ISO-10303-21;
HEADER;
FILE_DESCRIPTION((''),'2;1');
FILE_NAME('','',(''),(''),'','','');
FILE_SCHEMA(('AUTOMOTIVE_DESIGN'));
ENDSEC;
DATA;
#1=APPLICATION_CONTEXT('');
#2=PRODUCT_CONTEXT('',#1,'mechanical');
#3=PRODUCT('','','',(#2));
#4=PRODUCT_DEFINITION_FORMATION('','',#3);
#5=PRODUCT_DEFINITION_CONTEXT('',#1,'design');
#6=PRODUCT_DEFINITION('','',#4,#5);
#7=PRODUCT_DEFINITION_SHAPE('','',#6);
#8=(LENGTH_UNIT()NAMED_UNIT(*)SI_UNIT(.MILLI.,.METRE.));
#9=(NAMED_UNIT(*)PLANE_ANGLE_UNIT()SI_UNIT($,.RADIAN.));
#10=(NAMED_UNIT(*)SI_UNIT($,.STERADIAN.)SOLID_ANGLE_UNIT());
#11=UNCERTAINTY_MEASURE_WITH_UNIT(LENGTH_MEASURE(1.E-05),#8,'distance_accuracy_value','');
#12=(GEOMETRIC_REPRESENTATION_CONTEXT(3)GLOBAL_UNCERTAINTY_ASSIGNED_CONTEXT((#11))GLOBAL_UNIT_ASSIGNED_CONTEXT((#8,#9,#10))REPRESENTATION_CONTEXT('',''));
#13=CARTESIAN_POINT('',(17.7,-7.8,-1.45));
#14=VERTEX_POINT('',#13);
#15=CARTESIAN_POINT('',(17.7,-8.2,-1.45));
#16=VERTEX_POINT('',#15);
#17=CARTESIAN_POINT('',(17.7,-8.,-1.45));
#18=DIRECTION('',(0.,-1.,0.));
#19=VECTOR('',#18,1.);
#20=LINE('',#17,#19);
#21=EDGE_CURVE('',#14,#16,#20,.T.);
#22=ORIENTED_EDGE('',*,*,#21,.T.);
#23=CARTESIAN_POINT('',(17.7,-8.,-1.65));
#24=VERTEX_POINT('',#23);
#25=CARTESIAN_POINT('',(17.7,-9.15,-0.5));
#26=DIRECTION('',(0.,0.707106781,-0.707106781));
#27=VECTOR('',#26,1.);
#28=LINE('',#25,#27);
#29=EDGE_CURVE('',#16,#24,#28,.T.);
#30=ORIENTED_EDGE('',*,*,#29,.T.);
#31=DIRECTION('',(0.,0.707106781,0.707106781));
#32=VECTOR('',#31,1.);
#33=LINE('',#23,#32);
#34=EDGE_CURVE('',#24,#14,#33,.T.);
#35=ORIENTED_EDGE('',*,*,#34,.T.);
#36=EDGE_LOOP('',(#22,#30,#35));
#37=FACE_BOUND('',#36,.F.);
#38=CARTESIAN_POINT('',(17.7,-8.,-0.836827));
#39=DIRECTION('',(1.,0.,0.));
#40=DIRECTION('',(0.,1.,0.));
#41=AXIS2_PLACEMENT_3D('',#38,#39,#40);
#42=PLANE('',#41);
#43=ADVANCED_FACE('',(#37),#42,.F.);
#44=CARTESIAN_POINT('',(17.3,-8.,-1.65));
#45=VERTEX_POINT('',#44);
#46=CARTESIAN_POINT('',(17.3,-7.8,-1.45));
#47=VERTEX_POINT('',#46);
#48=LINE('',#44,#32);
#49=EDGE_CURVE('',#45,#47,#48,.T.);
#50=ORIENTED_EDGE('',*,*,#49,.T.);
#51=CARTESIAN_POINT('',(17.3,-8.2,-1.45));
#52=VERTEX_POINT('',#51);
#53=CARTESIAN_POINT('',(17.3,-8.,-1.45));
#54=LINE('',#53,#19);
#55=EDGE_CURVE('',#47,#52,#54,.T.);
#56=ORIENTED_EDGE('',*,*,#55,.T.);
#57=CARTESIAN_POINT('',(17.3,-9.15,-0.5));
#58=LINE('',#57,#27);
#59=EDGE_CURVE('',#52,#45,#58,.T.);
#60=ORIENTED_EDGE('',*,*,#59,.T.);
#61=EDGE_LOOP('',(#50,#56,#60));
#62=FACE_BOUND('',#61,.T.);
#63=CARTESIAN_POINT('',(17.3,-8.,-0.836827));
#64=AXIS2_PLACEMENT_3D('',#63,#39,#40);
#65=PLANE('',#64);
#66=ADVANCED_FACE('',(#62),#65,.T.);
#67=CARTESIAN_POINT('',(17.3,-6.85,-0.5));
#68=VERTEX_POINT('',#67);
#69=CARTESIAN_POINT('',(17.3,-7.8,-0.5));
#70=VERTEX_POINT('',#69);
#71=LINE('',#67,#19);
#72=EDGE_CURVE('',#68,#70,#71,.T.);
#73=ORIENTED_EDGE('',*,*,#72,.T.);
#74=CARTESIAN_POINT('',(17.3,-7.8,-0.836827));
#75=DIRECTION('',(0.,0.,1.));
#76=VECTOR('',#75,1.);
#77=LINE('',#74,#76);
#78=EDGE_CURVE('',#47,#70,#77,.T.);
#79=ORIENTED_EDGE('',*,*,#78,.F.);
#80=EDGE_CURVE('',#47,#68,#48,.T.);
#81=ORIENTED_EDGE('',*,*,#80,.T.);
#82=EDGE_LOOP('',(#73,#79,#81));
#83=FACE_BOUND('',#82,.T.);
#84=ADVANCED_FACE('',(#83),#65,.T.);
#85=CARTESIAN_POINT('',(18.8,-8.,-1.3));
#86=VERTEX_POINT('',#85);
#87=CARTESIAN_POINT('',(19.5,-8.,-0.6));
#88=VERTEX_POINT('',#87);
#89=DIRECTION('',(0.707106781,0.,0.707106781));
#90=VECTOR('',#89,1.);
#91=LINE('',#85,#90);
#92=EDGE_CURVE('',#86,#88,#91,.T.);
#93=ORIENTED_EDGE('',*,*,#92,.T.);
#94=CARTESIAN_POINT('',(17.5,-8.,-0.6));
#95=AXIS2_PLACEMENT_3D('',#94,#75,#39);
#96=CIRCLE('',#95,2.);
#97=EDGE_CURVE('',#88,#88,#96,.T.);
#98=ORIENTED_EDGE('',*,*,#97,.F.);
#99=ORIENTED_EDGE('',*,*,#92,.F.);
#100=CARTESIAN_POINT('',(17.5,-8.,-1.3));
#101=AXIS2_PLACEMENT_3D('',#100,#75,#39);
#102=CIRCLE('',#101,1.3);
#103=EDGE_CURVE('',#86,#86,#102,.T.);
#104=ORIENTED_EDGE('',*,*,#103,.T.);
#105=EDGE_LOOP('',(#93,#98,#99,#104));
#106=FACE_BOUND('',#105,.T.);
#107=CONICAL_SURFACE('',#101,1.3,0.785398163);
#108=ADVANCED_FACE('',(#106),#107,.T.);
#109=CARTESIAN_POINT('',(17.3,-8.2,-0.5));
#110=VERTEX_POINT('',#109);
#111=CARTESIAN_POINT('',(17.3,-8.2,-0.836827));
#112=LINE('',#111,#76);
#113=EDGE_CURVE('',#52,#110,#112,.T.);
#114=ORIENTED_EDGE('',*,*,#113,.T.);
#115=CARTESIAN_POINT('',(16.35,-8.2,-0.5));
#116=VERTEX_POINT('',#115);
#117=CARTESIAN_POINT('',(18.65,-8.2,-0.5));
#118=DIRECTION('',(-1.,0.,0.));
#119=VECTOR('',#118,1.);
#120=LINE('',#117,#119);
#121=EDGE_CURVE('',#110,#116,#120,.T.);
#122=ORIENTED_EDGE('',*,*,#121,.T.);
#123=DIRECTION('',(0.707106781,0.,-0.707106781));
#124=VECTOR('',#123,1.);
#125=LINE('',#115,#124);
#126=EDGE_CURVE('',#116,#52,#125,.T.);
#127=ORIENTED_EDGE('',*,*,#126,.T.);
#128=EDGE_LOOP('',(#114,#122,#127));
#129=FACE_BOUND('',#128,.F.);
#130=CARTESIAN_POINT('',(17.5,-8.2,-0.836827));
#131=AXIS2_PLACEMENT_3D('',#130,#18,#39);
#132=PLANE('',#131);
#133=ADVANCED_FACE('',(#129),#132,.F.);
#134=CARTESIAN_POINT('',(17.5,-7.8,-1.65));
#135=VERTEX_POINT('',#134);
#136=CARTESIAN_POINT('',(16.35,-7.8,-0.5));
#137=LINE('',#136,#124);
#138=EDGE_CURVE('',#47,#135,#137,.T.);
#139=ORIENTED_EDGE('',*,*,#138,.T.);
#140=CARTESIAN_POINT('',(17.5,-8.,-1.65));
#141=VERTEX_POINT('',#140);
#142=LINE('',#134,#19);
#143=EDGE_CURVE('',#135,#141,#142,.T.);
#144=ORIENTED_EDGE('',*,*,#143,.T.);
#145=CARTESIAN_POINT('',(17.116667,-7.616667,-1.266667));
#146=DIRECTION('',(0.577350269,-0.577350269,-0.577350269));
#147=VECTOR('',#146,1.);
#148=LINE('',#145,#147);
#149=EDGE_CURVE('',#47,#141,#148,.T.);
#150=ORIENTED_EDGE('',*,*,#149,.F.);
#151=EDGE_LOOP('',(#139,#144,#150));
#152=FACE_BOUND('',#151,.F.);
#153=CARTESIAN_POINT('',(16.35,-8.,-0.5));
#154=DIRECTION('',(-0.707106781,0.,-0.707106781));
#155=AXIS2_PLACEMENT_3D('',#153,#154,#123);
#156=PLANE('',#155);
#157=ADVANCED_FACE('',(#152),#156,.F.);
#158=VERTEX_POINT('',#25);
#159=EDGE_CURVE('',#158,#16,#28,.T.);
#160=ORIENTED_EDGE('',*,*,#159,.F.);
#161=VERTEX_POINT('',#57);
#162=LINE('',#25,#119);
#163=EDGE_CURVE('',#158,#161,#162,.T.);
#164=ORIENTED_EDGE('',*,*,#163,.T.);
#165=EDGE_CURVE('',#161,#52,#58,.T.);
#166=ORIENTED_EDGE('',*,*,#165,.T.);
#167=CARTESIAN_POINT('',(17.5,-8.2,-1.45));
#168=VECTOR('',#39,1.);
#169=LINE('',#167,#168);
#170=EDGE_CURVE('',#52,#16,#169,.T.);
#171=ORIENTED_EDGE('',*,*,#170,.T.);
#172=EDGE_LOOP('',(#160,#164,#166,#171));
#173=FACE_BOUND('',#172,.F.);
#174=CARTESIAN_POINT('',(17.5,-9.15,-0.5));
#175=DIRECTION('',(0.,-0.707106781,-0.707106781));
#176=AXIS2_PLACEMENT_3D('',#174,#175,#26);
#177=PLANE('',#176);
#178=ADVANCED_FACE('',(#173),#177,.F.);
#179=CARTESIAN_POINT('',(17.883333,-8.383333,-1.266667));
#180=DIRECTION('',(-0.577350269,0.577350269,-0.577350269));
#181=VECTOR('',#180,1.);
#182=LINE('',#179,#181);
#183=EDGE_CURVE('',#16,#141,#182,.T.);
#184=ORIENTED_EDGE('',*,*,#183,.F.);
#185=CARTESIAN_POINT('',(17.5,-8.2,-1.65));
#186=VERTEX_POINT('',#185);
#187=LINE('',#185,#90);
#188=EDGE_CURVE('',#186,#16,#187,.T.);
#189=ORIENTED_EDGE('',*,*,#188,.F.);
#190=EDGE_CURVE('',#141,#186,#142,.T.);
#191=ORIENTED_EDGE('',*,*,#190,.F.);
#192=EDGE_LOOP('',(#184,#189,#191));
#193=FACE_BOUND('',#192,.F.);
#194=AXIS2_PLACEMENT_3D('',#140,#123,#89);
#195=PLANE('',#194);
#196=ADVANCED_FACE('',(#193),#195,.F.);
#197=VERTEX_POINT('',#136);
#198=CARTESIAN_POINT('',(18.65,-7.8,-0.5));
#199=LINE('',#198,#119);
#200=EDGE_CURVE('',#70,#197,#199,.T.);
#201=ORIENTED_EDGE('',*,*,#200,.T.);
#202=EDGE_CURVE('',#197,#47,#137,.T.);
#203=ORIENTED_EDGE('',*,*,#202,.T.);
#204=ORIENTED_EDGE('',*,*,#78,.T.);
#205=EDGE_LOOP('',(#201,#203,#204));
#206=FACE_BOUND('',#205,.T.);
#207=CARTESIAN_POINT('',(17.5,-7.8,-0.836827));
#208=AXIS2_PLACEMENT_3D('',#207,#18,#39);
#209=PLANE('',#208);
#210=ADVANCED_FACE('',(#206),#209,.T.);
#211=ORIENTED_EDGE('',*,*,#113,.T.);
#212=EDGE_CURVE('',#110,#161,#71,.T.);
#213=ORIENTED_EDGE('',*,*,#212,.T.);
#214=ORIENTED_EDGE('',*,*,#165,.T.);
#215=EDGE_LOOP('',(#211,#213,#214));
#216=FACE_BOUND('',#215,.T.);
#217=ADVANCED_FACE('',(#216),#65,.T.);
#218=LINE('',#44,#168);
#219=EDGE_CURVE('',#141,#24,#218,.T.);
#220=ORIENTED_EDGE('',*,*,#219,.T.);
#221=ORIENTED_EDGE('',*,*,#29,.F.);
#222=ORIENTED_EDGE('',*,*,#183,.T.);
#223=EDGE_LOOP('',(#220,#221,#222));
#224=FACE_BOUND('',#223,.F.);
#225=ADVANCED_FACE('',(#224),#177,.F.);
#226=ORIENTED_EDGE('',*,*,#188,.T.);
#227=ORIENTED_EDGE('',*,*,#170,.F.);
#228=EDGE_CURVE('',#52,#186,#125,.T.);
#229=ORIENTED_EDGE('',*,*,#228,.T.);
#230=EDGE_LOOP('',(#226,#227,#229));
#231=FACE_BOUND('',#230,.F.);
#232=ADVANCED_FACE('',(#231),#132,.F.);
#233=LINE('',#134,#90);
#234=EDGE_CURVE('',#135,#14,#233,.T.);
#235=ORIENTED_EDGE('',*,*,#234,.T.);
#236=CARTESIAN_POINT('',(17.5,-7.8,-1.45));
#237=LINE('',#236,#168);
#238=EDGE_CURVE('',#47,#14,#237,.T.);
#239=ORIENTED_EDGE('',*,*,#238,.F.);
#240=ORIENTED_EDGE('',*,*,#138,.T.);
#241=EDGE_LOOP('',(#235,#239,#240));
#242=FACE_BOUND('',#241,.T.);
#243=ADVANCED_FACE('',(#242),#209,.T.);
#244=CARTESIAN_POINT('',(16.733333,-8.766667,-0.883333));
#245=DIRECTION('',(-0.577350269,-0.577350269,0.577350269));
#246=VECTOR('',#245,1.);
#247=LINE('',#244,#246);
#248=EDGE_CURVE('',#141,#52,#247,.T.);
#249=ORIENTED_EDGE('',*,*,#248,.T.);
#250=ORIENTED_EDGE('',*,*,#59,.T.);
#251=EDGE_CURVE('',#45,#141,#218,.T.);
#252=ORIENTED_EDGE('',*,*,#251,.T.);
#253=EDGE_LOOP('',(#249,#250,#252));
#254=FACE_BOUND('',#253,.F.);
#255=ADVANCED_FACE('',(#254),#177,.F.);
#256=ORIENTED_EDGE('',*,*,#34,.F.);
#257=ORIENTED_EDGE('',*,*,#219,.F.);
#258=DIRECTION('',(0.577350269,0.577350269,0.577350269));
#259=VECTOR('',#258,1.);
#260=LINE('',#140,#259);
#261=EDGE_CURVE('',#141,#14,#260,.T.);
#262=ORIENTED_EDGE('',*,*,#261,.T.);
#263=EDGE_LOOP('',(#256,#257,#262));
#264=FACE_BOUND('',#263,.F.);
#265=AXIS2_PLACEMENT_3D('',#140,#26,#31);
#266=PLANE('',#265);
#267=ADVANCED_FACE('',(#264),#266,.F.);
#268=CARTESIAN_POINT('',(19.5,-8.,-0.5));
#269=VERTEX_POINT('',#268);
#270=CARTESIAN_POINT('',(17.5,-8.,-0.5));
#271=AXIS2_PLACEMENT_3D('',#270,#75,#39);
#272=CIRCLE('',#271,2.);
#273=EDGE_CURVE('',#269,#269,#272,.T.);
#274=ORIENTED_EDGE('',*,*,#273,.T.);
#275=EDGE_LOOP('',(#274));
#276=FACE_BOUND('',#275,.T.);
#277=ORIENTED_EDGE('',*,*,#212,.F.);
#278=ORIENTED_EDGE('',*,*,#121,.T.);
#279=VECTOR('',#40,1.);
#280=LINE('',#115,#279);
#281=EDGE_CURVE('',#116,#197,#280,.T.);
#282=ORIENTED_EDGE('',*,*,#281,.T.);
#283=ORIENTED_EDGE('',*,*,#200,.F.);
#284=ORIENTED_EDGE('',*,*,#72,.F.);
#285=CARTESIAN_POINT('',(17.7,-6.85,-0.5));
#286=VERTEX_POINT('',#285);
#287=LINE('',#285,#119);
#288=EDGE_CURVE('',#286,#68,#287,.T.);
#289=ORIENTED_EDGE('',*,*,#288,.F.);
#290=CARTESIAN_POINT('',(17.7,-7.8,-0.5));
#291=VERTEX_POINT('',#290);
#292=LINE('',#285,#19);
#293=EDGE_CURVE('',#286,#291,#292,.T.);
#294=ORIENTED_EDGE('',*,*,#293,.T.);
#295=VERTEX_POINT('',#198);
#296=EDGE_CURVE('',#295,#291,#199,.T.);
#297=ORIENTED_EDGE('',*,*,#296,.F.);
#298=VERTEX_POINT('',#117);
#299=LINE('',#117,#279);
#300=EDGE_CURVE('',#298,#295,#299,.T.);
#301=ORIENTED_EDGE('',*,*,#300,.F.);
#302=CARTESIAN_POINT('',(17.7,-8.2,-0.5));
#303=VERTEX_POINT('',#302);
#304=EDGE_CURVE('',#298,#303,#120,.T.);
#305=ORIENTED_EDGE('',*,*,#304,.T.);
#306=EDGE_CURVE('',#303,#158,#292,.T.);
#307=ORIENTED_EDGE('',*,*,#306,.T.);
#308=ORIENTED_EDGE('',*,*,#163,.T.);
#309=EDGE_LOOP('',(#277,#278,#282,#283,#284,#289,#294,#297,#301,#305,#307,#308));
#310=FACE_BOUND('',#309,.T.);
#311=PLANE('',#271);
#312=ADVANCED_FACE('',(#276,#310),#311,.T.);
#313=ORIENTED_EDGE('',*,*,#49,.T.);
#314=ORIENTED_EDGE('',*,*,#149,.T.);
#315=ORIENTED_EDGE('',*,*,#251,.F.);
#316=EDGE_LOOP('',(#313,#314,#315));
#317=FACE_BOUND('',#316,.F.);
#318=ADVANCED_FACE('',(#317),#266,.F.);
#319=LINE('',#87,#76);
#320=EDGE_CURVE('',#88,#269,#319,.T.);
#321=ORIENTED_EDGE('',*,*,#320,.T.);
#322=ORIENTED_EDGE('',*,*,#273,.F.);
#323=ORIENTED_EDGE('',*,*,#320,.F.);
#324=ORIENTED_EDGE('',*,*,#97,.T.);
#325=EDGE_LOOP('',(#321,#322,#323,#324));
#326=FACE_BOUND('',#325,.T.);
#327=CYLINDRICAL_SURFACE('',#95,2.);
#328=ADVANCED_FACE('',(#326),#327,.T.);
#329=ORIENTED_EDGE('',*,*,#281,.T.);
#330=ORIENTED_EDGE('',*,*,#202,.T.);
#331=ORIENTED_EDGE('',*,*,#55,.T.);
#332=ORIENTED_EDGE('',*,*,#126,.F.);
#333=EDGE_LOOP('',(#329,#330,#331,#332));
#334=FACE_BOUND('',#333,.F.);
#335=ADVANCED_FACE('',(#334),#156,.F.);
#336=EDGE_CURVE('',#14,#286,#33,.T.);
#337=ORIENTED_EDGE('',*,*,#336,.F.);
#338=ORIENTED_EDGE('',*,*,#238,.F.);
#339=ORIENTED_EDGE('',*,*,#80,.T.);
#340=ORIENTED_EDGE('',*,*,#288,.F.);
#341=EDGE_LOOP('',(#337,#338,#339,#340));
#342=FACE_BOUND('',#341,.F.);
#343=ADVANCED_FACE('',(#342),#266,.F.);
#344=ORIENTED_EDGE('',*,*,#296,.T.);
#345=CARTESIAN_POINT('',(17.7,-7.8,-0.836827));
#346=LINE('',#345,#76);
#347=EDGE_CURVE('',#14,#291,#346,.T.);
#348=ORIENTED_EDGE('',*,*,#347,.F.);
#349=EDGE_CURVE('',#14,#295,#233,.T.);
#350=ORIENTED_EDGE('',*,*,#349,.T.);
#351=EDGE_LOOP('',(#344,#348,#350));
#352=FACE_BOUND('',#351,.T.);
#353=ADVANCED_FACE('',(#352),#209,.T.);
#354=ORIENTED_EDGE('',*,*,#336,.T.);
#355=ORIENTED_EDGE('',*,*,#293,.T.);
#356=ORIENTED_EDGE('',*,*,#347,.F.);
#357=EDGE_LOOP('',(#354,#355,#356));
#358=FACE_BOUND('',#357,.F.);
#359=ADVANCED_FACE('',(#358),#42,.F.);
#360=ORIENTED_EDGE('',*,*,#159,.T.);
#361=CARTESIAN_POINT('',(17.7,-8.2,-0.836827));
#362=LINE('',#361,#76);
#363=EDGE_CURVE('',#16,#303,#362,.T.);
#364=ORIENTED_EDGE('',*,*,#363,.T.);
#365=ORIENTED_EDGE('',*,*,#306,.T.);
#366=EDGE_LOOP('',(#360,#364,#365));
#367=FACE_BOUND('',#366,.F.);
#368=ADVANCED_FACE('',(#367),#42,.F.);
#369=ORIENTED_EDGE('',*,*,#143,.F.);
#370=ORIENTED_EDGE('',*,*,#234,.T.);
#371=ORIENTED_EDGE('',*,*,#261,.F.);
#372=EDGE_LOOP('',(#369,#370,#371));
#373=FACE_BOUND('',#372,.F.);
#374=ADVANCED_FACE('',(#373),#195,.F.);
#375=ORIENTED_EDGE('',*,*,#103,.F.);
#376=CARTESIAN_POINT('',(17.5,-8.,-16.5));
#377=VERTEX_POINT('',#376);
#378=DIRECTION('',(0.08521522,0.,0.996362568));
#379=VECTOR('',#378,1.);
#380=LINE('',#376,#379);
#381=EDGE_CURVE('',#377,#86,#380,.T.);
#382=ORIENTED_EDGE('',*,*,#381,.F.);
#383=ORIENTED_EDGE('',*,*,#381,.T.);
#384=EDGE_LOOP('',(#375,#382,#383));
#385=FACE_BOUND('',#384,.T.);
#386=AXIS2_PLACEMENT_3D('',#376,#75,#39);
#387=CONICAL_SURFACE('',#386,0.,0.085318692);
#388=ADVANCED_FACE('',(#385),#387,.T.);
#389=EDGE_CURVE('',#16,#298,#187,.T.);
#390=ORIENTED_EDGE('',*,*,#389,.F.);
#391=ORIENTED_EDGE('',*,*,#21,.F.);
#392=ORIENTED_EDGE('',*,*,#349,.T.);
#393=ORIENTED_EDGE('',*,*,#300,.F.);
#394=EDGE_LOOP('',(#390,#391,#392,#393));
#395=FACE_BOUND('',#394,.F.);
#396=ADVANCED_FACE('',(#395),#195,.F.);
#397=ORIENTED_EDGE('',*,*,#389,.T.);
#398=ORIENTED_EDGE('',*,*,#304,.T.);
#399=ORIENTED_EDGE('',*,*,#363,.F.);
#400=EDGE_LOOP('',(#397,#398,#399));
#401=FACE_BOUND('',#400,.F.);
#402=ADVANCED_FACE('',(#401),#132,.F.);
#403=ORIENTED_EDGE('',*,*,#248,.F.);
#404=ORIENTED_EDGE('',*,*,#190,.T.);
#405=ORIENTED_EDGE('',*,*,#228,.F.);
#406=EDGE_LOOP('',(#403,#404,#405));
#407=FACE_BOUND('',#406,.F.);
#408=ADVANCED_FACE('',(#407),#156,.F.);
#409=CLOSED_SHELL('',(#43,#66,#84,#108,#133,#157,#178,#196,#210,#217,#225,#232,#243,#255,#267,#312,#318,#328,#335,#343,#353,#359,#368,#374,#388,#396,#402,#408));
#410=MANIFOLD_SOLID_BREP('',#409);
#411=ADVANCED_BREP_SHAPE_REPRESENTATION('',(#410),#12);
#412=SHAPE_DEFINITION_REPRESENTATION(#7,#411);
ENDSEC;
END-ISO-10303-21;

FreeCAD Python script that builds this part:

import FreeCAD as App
import Part
import Sketcher

V = App.Vector
Q = App.Units.Quantity

doc = App.newDocument("Part")
body = doc.addObject("PartDesign::Body", "Body")

# Sketch on XZ plane
sketch1 = body.newObject("Sketcher::SketchObject", "Sketch")
sketch1.AttachmentSupport = (doc.getObject("XZ_Plane"), [""])
sketch1.MapMode = "FlatFace"
sketch1.addGeometry(Part.LineSegment(V(0, 0, 0), V(0, -16, 0)), False)
sketch1.addGeometry(Part.LineSegment(V(0, -16, 0), V(1.3, -0.8, 0)), False)
sketch1.addGeometry(Part.LineSegment(V(1.3, -0.8, 0), V(2, -0.1, 0)), False)
sketch1.addGeometry(Part.LineSegment(V(2, -0.1, 0), V(2, 0, 0)), False)
sketch1.addGeometry(Part.LineSegment(V(2, 0, 0), V(0, 0, 0)), False)
sketch1.addConstraint(Sketcher.Constraint("Coincident", 0, 2, 1, 1))
sketch1.addConstraint(Sketcher.Constraint("Coincident", 1, 2, 2, 1))
sketch1.addConstraint(Sketcher.Constraint("Coincident", 2, 2, 3, 1))
sketch1.addConstraint(Sketcher.Constraint("Coincident", 3, 2, 4, 1))
sketch1.addConstraint(Sketcher.Constraint("Coincident", 4, 2, 0, 1))
sketch1.addConstraint(Sketcher.Constraint("Vertical", 0))
sketch1.addConstraint(Sketcher.Constraint("Vertical", 3))
sketch1.addConstraint(Sketcher.Constraint("Horizontal", 4))
sketch1.addConstraint(Sketcher.Constraint("Coincident", 4, 2, -1, 1))
sketch1.addConstraint(Sketcher.Constraint("DistanceX", 4, 2, 4, 1, 2.0))
sketch1.addConstraint(Sketcher.Constraint("DistanceY", 0, 2, 0, 1, 16.0))
sketch1.addConstraint(Sketcher.Constraint("Angle", 2, Q("45 deg")))
sketch1.addConstraint(Sketcher.Constraint("DistanceY", 3, 1, 3, 2, 0.1))
sketch1.addConstraint(Sketcher.Constraint("DistanceX", -1, 1, 1, 2, 1.3))
revolution = body.newObject("PartDesign::Revolution", "Revolution")
revolution.Profile = sketch1
revolution.ReferenceAxis = (sketch1, ["V_Axis"])
revolution.Angle = 360

# Sketch on XZ plane
sketch2 = body.newObject("Sketcher::SketchObject", "Sketch001")
sketch2.AttachmentSupport = (doc.getObject("XZ_Plane"), [""])
sketch2.MapMode = "FlatFace"
sketch2.addGeometry(Part.LineSegment(V(-1.1, 0, 0), V(0, -1.1, 0)), False)
sketch2.addGeometry(Part.LineSegment(V(0, -1.1, 0), V(1.1, 0, 0)), False)
sketch2.addGeometry(Part.LineSegment(V(1.1, 0, 0), V(-1.1, 0, 0)), False)
sketch2.addConstraint(Sketcher.Constraint("Coincident", 0, 2, 1, 1))
sketch2.addConstraint(Sketcher.Constraint("Coincident", 1, 2, 2, 1))
sketch2.addConstraint(Sketcher.Constraint("Coincident", 2, 2, 0, 1))
sketch2.addConstraint(Sketcher.Constraint("Horizontal", 2))
sketch2.addConstraint(Sketcher.Constraint("Symmetric", 1, 2, 2, 2, -1, 1))
sketch2.addConstraint(Sketcher.Constraint("PointOnObject", 0, 2, -2))
sketch2.addConstraint(Sketcher.Constraint("Perpendicular", 0, 1))
sketch2.addConstraint(Sketcher.Constraint("DistanceX", 2, 2, 2, 1, 2.3))
pocket1 = body.newObject("PartDesign::Pocket", "Pocket")
pocket1.Profile = sketch2
pocket1.Length = 0.4
pocket1.Midplane = True
doc.recompute()

polarpattern = body.newObject("PartDesign::PolarPattern", "PolarPattern")
polarpattern.Originals = [pocket1]
polarpattern.Axis = (doc.getObject("Z_Axis"), [""])
polarpattern.Angle = 90
polarpattern.Occurrences = 2
body.Tip = polarpattern
body2 = doc.addObject("PartDesign::Body", "Body001")
doc.recompute()

body.Placement = App.Placement(V(17.5, -8, -0.5), App.Rotation(V(0, 0, 1), 0))
boolean = body2.newObject("PartDesign::Boolean", "Boolean")
boolean.Type = "Fuse"
boolean.addObjects([body])

doc.recompute()
